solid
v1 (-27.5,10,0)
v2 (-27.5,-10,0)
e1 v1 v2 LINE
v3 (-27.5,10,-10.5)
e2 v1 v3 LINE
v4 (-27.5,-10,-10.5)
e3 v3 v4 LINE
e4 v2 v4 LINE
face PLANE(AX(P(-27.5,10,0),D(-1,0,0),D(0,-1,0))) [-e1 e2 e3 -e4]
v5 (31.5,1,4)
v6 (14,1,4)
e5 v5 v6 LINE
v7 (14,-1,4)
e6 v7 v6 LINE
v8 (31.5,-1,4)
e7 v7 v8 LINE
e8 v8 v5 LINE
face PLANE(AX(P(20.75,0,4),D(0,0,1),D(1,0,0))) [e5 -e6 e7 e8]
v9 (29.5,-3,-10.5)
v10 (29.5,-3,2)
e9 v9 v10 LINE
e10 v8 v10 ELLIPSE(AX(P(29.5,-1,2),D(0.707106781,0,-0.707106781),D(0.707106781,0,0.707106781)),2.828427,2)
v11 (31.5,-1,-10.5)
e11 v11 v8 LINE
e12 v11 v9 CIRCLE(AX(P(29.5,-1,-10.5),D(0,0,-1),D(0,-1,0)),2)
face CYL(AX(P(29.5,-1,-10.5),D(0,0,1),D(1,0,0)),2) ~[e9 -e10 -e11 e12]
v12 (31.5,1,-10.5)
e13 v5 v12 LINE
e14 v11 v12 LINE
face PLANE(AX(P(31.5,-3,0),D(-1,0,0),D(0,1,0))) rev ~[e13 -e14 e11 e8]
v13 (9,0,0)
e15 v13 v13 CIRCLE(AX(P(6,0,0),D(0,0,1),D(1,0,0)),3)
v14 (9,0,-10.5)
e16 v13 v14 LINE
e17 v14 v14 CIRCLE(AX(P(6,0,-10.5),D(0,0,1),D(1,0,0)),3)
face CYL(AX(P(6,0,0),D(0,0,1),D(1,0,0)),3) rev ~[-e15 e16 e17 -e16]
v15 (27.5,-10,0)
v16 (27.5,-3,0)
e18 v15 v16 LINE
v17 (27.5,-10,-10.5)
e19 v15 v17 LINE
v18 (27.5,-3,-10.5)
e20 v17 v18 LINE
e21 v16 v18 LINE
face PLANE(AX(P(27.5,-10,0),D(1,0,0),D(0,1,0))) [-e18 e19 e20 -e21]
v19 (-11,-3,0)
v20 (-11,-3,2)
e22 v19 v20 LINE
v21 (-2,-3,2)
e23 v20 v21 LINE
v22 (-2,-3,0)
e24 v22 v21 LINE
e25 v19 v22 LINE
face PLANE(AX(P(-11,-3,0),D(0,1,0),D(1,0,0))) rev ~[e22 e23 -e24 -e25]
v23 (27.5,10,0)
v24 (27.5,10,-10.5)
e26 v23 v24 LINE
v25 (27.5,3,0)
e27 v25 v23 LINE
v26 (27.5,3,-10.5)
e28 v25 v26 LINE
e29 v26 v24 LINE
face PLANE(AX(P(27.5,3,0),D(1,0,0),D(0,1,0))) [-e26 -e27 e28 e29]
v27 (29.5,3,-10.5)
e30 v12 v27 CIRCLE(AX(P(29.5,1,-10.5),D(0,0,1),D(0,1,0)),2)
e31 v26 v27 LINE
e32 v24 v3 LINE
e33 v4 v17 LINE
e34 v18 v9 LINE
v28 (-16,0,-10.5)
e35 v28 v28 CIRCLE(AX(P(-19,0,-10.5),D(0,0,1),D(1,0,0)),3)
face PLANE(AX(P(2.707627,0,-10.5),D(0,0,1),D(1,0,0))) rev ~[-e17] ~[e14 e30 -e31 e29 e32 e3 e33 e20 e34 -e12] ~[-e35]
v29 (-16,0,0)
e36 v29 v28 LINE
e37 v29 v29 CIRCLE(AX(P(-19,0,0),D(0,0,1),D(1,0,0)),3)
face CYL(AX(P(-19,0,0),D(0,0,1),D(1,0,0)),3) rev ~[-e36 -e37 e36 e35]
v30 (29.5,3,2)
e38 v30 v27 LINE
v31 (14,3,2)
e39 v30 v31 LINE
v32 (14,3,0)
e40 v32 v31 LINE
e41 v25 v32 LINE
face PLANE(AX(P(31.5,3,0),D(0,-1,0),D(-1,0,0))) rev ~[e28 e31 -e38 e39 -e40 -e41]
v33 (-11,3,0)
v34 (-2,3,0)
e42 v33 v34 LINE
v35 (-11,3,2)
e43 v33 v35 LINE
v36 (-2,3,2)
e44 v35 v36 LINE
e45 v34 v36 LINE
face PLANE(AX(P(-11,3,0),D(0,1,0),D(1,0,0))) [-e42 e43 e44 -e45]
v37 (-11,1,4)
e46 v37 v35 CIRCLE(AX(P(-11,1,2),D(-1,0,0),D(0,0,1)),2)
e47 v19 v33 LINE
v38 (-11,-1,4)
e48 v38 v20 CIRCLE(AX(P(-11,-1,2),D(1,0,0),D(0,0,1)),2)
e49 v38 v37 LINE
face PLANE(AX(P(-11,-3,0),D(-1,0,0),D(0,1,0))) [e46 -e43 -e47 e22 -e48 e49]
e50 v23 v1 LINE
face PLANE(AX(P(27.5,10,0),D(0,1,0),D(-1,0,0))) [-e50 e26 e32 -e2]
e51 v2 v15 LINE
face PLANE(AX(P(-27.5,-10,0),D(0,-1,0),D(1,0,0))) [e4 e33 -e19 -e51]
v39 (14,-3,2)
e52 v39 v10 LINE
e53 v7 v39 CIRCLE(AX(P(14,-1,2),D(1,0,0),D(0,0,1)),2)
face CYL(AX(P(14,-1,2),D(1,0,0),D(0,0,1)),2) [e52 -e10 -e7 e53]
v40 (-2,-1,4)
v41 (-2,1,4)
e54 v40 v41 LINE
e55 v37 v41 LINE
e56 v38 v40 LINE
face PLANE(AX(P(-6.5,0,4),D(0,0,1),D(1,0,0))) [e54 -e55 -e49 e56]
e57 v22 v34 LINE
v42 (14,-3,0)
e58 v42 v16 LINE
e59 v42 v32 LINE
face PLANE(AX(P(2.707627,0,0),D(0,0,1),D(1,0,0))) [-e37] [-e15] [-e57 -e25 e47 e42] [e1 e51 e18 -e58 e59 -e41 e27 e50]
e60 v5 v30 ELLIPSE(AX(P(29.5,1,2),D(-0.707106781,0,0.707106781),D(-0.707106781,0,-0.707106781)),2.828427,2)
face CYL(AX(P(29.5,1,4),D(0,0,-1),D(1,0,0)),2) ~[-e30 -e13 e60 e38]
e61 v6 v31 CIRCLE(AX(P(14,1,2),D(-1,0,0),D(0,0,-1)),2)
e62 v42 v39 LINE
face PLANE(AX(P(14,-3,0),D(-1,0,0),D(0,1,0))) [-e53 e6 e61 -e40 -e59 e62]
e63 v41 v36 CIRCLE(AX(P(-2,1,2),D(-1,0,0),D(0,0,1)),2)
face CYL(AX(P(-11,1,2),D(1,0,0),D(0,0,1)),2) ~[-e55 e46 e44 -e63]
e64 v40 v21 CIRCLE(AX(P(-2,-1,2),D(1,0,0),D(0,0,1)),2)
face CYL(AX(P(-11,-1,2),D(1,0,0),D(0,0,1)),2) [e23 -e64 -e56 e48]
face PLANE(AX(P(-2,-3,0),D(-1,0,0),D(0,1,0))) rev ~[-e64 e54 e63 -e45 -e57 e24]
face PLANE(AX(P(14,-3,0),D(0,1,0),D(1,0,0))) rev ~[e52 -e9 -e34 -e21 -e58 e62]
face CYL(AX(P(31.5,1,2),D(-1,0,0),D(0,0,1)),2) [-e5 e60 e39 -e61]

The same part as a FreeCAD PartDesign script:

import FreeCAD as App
import Part
import Sketcher
from FreeCAD import Vector


def edges_at(feature, points):
    """Names of the edges that pass closest to the given points."""
    edges = feature.Shape.Edges
    near = lambda p: min(range(len(edges)), key=lambda i: edges[i].distToShape(Part.Vertex(*p))[0])
    return sorted({f"Edge{near(p) + 1}" for p in points})


def add_polygon(sketch, points):
    """Adds a closed chain of lines whose ends are joined by coincident constraints."""
    first, n = sketch.GeometryCount, len(points)
    for a, b in zip(points, points[1:] + points[:1]):
        sketch.addGeometry(Part.LineSegment(App.Vector(*a, 0), App.Vector(*b, 0)), False)
    for i in range(n):
        sketch.addConstraint(Sketcher.Constraint("Coincident", first + i, 2, first + (i + 1) % n, 1))

doc = App.newDocument("Part")
body = doc.addObject("PartDesign::Body", "Body")

# Sketch on XY plane
sketch1 = body.newObject("Sketcher::SketchObject", "Sketch")
sketch1.AttachmentSupport = (doc.getObject("XY_Plane"), [""])
sketch1.MapMode = "FlatFace"
add_polygon(sketch1, [(27.5, 10), (-27.5, 10), (-27.5, -10), (27.5, -10), (27.5, -3), (31.5, -3), (31.5, 3), (27.5, 3)])  # lines 0-7
sketch1.addGeometry(Part.Circle(Vector(-19, 0, 0), Vector(0, 0, 1), 3), False)  # 8
sketch1.addGeometry(Part.Circle(Vector(6, 0, 0), Vector(0, 0, 1), 3), False)  # 9
sketch1.addConstraint(Sketcher.Constraint("Horizontal", 0))
sketch1.addConstraint(Sketcher.Constraint("Vertical", 1))
sketch1.addConstraint(Sketcher.Constraint("Horizontal", 2))
sketch1.addConstraint(Sketcher.Constraint("Vertical", 3))
sketch1.addConstraint(Sketcher.Constraint("Horizontal", 4))
sketch1.addConstraint(Sketcher.Constraint("Vertical", 5))
sketch1.addConstraint(Sketcher.Constraint("Horizontal", 6))
sketch1.addConstraint(Sketcher.Constraint("Vertical", 7))
sketch1.addConstraint(Sketcher.Constraint("Equal", 8, 9))
sketch1.addConstraint(Sketcher.Constraint("Symmetric", 0, 2, 2, 2, -1, 1))
sketch1.addConstraint(Sketcher.Constraint("Symmetric", 3, 2, 6, 2, -1))
sketch1.addConstraint(Sketcher.Constraint("PointOnObject", 8, 3, -1))
sketch1.addConstraint(Sketcher.Constraint("PointOnObject", 9, 3, -1))
sketch1.addConstraint(Sketcher.Constraint("Diameter", 8, 6.0))
sketch1.addConstraint(Sketcher.Constraint("DistanceX", 0, 2, 0, 1, 55.0))
sketch1.addConstraint(Sketcher.Constraint("DistanceX", 4, 1, 4, 2, 4.0))
sketch1.addConstraint(Sketcher.Constraint("DistanceY", 1, 2, 1, 1, 20.0))
sketch1.addConstraint(Sketcher.Constraint("DistanceY", 3, 1, 3, 2, 7.0))
sketch1.addConstraint(Sketcher.Constraint("DistanceX", 8, 3, -1, 1, 19.0))
sketch1.addConstraint(Sketcher.Constraint("DistanceX", -1, 1, 9, 3, 6.0))
pad1 = body.newObject("PartDesign::Pad", "Pad")
pad1.Profile = sketch1
pad1.Length = 10.5
pad1.Reversed = True

# Sketch on XY plane
sketch2 = body.newObject("Sketcher::SketchObject", "Sketch001")
sketch2.AttachmentSupport = (doc.getObject("XY_Plane"), [""])
sketch2.MapMode = "FlatFace"
add_polygon(sketch2, [(14, 3), (14, -3), (32, -3), (32, 3)])  # lines 0-3
add_polygon(sketch2, [(-11, 3), (-11, -3), (-2, -3), (-2, 3)])  # lines 4-7
sketch2.addConstraint(Sketcher.Constraint("Vertical", 0))
sketch2.addConstraint(Sketcher.Constraint("Horizontal", 1))
sketch2.addConstraint(Sketcher.Constraint("Vertical", 2))
sketch2.addConstraint(Sketcher.Constraint("Horizontal", 3))
sketch2.addConstraint(Sketcher.Constraint("Vertical", 4))
sketch2.addConstraint(Sketcher.Constraint("Horizontal", 5))
sketch2.addConstraint(Sketcher.Constraint("Vertical", 6))
sketch2.addConstraint(Sketcher.Constraint("Horizontal", 7))
sketch2.addConstraint(Sketcher.Constraint("Horizontal", 1, 2, 4, 2))
sketch2.addConstraint(Sketcher.Constraint("Horizontal", 3, 2, 6, 2))
sketch2.addConstraint(Sketcher.Constraint("DistanceX", 5, 1, 5, 2, 9.0))
sketch2.addConstraint(Sketcher.Constraint("DistanceY", 0, 2, 0, 1, 6.0))
sketch2.addConstraint(Sketcher.Constraint("DistanceX", 1, 1, 1, 2, 17.5))
sketch2.addConstraint(Sketcher.Constraint("DistanceX", -1, 1, 0, 2, 14.0))
sketch2.addConstraint(Sketcher.Constraint("DistanceY", 0, 2, -1, 1, 3.0))
sketch2.addConstraint(Sketcher.Constraint("DistanceX", 4, 2, -1, 1, 11.0))
pad2 = body.newObject("PartDesign::Pad", "Pad001")
pad2.Profile = sketch2
pad2.Length = 4
doc.recompute()

fillet = body.newObject("PartDesign::Fillet", "Fillet")
fillet.Base = (pad2, edges_at(pad2, [
    (22.75, -3, 4),
    (22.75, 3, 4),
    (31.5, 3, -3.25),
    (31.5, -3, -3.25),
    (-6.5, 3, 4),
    (-6.5, -3, 4),
]))
fillet.Radius = 2

doc.recompute()
